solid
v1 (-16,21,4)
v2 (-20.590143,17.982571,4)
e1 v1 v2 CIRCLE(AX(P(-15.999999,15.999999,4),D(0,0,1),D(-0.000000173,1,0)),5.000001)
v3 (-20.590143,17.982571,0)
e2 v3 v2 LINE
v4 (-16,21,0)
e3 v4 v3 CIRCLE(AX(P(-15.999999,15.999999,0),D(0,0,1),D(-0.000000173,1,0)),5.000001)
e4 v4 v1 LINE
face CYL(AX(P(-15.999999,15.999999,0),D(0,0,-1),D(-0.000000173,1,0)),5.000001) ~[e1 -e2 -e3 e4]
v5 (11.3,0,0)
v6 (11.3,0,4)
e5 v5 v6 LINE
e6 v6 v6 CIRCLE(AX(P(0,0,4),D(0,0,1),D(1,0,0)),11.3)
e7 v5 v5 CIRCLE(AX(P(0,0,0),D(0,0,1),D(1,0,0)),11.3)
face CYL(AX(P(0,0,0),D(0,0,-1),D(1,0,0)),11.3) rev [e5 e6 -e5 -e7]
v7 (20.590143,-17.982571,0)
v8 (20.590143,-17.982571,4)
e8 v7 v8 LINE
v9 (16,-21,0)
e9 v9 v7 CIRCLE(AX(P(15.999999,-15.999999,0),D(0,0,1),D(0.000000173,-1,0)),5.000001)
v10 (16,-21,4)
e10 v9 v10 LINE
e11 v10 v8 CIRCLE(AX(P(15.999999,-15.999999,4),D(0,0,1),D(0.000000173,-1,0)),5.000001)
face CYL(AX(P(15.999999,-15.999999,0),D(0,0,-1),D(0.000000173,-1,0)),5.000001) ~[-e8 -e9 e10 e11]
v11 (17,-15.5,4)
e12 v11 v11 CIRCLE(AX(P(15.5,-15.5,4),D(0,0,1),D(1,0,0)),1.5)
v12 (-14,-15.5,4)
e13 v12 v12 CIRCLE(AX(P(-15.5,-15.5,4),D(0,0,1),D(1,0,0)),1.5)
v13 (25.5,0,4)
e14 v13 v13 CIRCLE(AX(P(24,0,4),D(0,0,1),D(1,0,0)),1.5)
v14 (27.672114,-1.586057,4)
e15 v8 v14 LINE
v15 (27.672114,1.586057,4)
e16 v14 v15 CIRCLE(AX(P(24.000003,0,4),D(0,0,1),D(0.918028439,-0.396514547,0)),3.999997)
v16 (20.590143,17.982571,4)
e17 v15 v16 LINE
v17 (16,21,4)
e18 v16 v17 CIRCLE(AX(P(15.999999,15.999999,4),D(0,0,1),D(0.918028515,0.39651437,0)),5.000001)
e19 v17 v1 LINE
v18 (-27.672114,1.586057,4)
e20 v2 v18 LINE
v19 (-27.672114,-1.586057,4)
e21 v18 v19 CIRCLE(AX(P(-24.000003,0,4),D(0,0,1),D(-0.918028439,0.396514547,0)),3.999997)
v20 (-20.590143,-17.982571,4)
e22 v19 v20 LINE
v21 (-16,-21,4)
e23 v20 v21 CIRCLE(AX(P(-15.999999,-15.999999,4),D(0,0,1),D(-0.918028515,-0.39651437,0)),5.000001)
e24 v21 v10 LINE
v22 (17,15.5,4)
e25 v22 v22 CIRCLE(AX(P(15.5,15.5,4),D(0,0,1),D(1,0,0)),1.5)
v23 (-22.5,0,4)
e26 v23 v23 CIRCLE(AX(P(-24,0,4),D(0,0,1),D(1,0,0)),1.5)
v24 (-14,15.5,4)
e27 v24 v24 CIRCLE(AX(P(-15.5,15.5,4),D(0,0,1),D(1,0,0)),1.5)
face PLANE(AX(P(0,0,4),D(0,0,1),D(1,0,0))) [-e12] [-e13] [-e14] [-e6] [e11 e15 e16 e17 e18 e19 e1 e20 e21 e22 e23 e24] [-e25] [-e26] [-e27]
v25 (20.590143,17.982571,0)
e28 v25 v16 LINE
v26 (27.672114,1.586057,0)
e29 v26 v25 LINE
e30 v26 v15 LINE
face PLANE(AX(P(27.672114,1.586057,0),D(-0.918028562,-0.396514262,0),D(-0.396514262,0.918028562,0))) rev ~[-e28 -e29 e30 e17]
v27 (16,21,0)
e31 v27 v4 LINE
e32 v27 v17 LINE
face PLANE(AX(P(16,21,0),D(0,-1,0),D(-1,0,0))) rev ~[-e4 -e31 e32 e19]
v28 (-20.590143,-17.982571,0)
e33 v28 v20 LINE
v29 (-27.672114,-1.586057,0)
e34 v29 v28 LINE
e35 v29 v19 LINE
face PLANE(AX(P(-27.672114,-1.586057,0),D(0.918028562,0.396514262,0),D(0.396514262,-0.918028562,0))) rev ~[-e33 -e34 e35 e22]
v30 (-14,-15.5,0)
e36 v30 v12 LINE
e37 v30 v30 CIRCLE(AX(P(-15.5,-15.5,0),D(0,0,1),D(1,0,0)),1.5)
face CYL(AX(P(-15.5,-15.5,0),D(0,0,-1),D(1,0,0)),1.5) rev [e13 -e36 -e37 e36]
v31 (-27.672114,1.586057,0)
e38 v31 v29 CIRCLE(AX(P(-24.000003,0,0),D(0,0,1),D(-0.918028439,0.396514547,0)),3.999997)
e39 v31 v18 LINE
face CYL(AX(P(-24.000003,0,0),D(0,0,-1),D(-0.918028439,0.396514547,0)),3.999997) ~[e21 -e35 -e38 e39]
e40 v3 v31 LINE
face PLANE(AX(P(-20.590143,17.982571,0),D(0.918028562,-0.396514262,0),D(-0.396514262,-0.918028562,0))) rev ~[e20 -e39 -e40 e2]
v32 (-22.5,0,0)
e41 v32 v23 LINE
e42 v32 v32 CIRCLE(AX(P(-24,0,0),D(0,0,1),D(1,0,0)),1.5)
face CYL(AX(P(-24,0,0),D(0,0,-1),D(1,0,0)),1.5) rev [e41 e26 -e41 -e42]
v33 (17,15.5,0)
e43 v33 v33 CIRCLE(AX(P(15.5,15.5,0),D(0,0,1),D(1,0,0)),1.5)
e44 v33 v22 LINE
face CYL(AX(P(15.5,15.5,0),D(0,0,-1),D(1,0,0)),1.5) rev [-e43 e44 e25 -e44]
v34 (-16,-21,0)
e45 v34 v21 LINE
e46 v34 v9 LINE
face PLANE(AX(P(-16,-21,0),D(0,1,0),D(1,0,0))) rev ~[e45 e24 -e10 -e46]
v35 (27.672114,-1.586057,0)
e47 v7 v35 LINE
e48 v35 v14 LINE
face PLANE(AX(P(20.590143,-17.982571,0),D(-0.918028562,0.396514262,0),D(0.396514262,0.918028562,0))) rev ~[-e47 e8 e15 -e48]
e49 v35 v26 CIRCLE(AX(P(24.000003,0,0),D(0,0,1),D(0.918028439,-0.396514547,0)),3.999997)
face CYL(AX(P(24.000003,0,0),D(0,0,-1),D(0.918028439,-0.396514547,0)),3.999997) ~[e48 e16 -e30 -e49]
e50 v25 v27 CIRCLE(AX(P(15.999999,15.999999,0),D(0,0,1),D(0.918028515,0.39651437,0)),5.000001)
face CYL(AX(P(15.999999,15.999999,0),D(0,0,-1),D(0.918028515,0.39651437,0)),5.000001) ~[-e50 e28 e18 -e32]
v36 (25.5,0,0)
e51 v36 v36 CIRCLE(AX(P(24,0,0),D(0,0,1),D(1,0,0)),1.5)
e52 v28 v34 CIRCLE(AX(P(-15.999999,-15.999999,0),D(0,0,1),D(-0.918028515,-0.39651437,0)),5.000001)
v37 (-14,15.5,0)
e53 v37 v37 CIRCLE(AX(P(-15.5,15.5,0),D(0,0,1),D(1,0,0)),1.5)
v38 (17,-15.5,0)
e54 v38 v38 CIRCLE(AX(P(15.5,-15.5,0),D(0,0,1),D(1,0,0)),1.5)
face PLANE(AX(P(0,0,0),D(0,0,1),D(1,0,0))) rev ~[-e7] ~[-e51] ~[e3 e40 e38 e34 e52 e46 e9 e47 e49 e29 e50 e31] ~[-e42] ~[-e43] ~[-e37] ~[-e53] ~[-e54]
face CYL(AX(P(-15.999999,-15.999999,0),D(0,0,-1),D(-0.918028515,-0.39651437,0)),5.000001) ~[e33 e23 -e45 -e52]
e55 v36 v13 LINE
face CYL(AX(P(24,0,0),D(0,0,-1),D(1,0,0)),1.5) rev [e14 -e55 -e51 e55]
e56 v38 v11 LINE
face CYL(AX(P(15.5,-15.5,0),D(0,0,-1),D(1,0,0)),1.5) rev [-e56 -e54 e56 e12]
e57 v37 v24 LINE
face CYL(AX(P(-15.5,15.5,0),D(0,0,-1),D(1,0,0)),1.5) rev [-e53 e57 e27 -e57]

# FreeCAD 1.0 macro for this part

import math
import FreeCAD as App
import Part
import Sketcher

V = App.Vector

doc = App.newDocument("Part")
body = doc.addObject("PartDesign::Body", "Body")

# Sketch on XY plane
sketch1 = doc.addObject("Sketcher::SketchObject", "Sketch")
body.addObject(sketch1)
sketch1.AttachmentSupport = (doc.XY_Plane, [""])
sketch1.MapMode = "FlatFace"
sketch1.addGeometry([
    Part.LineSegment(V(-20.6, 18, 0), V(-27.7, 1.6, 0)),  # 0
    Part.ArcOfCircle(Part.Circle(V(-24, 0, 0), V(0, 0, 1), 4), math.radians(157), math.radians(203)),  # 1
    Part.LineSegment(V(-27.7, -1.6, 0), V(-20.6, -18, 0)),  # 2
    Part.ArcOfCircle(Part.Circle(V(-16, -16, 0), V(0, 0, 1), 5), math.radians(-157), math.radians(-90)),  # 3
    Part.LineSegment(V(-16, -21, 0), V(16, -21, 0)),  # 4
    Part.ArcOfCircle(Part.Circle(V(16, -16, 0), V(0, 0, 1), 5), math.radians(-90), math.radians(-23)),  # 5
    Part.LineSegment(V(20.6, -18, 0), V(27.7, -1.6, 0)),  # 6
    Part.ArcOfCircle(Part.Circle(V(24, 0, 0), V(0, 0, 1), 4), math.radians(-23), math.radians(23)),  # 7
    Part.LineSegment(V(27.7, 1.6, 0), V(20.6, 18, 0)),  # 8
    Part.ArcOfCircle(Part.Circle(V(16, 16, 0), V(0, 0, 1), 5), math.radians(23), math.radians(90)),  # 9
    Part.LineSegment(V(16, 21, 0), V(-16, 21, 0)),  # 10
    Part.ArcOfCircle(Part.Circle(V(-16, 16, 0), V(0, 0, 1), 5), math.radians(90), math.radians(157)),  # 11
    Part.Circle(V(-15.5, -15.5, 0), V(0, 0, 1), 1.5),  # 12
    Part.Circle(V(15.5, -15.5, 0), V(0, 0, 1), 1.5),  # 13
    Part.Circle(V(-24, 0, 0), V(0, 0, 1), 1.5),  # 14
    Part.Circle(V(-15.5, 15.5, 0), V(0, 0, 1), 1.5),  # 15
    Part.Circle(V(0, 0, 0), V(0, 0, 1), 11.3),  # 16
    Part.Circle(V(24, 0, 0), V(0, 0, 1), 1.5),  # 17
    Part.Circle(V(15.5, 15.5, 0), V(0, 0, 1), 1.5),  # 18
], False)
sketch1.addConstraint([
    Sketcher.Constraint("Tangent", 0, 2, 1, 1),
    Sketcher.Constraint("Tangent", 1, 2, 2, 1),
    Sketcher.Constraint("Tangent", 2, 2, 3, 1),
    Sketcher.Constraint("Tangent", 3, 2, 4, 1),
    Sketcher.Constraint("Tangent", 4, 2, 5, 1),
    Sketcher.Constraint("Tangent", 5, 2, 6, 1),
    Sketcher.Constraint("Tangent", 6, 2, 7, 1),
    Sketcher.Constraint("Tangent", 7, 2, 8, 1),
    Sketcher.Constraint("Tangent", 8, 2, 9, 1),
    Sketcher.Constraint("Tangent", 9, 2, 10, 1),
    Sketcher.Constraint("Tangent", 10, 2, 11, 1),
    Sketcher.Constraint("Tangent", 11, 2, 0, 1),
    Sketcher.Constraint("Horizontal", 4),
    Sketcher.Constraint("Horizontal", 10),
    Sketcher.Constraint("Coincident", 16, 3, -1, 1),
    Sketcher.Constraint("Coincident", 14, 3, 1, 3),
    Sketcher.Constraint("Coincident", 17, 3, 7, 3),
    Sketcher.Constraint("Equal", 3, 5),
    Sketcher.Constraint("Equal", 1, 7),
    Sketcher.Constraint("Equal", 5, 9),
    Sketcher.Constraint("Equal", 9, 11),
    Sketcher.Constraint("Equal", 12, 13),
    Sketcher.Constraint("Equal", 13, 14),
    Sketcher.Constraint("Equal", 14, 15),
    Sketcher.Constraint("Equal", 15, 17),
    Sketcher.Constraint("Equal", 17, 18),
    Sketcher.Constraint("Symmetric", 1, 3, 7, 3, -1, 1),
    Sketcher.Constraint("Symmetric", 3, 3, 9, 3, -1, 1),
    Sketcher.Constraint("Symmetric", 13, 3, 15, 3, -1, 1),
    Sketcher.Constraint("Symmetric", 12, 3, 18, 3, -1, 1),
    Sketcher.Constraint("Symmetric", 12, 3, 13, 3, -2),
    Sketcher.Constraint("Symmetric", 2, 2, 5, 2, -2),
    Sketcher.Constraint("Parallel", 0, 6),
    Sketcher.Constraint("Diameter", 12, 3.0),
    Sketcher.Constraint("Radius", 3, 5.000001),
    Sketcher.Constraint("Diameter", 16, 22.6),
    Sketcher.Constraint("DistanceX", 4, 1, 4, 2, 32.0),
    Sketcher.Constraint("DistanceY", 3, 3, -1, 1, 15.999999),
    Sketcher.Constraint("DistanceX", 14, 3, -1, 1, 24.0),
    Sketcher.Constraint("DistanceX", 12, 3, 13, 3, 31.0),
    Sketcher.Constraint("DistanceY", 12, 3, 15, 3, 31.0),
    Sketcher.Constraint("Radius", 1, 3.999997),
])
pad1 = doc.addObject("PartDesign::Pad", "Pad")
body.addObject(pad1)
pad1.Profile = sketch1
pad1.Length = 4

doc.recompute()
